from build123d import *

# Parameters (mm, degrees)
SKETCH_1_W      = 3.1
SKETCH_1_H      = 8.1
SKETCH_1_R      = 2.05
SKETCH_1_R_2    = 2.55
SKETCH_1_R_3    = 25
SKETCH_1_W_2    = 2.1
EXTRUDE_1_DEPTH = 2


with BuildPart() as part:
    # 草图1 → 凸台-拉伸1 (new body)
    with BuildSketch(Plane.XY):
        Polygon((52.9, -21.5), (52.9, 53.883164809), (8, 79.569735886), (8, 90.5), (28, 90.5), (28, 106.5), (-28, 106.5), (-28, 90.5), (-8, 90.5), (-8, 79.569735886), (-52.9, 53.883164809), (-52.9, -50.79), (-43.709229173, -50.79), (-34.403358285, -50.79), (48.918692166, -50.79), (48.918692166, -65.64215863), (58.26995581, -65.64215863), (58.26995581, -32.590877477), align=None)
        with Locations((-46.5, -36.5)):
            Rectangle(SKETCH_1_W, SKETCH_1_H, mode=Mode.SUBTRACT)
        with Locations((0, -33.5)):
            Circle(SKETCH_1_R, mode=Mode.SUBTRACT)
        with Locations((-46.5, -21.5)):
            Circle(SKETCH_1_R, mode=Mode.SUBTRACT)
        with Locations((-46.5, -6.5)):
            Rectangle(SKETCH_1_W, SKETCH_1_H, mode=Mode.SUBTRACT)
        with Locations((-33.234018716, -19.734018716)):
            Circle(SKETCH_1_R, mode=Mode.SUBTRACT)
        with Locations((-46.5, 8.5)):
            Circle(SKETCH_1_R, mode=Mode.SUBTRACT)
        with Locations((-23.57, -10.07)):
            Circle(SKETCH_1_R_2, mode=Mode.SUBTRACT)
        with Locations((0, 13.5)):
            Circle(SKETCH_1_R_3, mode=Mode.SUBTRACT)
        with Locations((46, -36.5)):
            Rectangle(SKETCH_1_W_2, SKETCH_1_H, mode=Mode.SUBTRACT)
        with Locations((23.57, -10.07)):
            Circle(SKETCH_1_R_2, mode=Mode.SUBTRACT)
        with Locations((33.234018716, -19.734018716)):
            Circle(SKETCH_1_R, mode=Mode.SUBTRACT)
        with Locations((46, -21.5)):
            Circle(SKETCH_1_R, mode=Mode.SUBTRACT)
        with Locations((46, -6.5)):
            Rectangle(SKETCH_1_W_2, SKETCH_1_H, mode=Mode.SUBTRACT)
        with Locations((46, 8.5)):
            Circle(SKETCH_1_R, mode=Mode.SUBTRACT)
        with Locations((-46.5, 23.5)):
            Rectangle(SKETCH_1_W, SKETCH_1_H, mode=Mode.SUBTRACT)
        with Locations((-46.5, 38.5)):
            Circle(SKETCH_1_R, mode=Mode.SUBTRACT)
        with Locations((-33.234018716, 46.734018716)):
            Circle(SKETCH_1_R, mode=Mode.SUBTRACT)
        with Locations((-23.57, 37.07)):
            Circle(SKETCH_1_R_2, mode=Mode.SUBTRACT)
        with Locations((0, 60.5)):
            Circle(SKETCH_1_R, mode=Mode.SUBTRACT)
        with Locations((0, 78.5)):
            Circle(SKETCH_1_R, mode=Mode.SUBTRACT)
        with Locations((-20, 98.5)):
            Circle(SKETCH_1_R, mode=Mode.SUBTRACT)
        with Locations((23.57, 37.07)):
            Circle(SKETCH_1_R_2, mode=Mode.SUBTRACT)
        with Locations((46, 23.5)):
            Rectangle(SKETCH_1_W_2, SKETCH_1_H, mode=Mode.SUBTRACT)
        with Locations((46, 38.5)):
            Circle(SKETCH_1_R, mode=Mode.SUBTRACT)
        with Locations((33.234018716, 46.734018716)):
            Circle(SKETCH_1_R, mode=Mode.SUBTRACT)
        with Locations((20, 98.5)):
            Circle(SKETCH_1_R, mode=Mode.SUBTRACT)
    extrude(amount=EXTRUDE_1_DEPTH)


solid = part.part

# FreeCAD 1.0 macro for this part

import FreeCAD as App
import Part
import Sketcher

V = App.Vector
Q = App.Units.Quantity

doc = App.newDocument("Part")
body = doc.addObject("PartDesign::Body", "Body")

# Sketch on XY plane
sketch1 = body.newObject("Sketcher::SketchObject", "Sketch")
sketch1.AttachmentSupport = (doc.getObject("XY_Plane"), [""])
sketch1.MapMode = "FlatFace"
sketch1.addGeometry(Part.LineSegment(V(52.9, -21.5, 0), V(52.9, 53.9, 0)), False)
sketch1.addGeometry(Part.LineSegment(V(52.9, 53.9, 0), V(8, 79.6, 0)), False)
sketch1.addGeometry(Part.LineSegment(V(8, 79.6, 0), V(8, 90.5, 0)), False)
sketch1.addGeometry(Part.LineSegment(V(8, 90.5, 0), V(28, 90.5, 0)), False)
sketch1.addGeometry(Part.LineSegment(V(28, 90.5, 0), V(28, 106.5, 0)), False)
sketch1.addGeometry(Part.LineSegment(V(28, 106.5, 0), V(-28, 106.5, 0)), False)
sketch1.addGeometry(Part.LineSegment(V(-28, 106.5, 0), V(-28, 90.5, 0)), False)
sketch1.addGeometry(Part.LineSegment(V(-28, 90.5, 0), V(-8, 90.5, 0)), False)
sketch1.addGeometry(Part.LineSegment(V(-8, 90.5, 0), V(-8, 79.6, 0)), False)
sketch1.addGeometry(Part.LineSegment(V(-8, 79.6, 0), V(-52.9, 53.9, 0)), False)
sketch1.addGeometry(Part.LineSegment(V(-52.9, 53.9, 0), V(-52.9, -50.8, 0)), False)
sketch1.addGeometry(Part.LineSegment(V(-52.9, -50.8, 0), V(48.9, -50.8, 0)), False)
sketch1.addGeometry(Part.LineSegment(V(48.9, -50.8, 0), V(48.9, -65.6, 0)), False)
sketch1.addGeometry(Part.LineSegment(V(48.9, -65.6, 0), V(58.3, -65.6, 0)), False)
sketch1.addGeometry(Part.LineSegment(V(58.3, -65.6, 0), V(58.3, -32.6, 0)), False)
sketch1.addGeometry(Part.LineSegment(V(58.3, -32.6, 0), V(52.9, -21.5, 0)), False)
sketch1.addGeometry(Part.LineSegment(V(-45, -40.5, 0), V(-48, -40.5, 0)), False)
sketch1.addGeometry(Part.LineSegment(V(-48, -40.5, 0), V(-48, -32.5, 0)), False)
sketch1.addGeometry(Part.LineSegment(V(-48, -32.5, 0), V(-45, -32.5, 0)), False)
sketch1.addGeometry(Part.LineSegment(V(-45, -32.5, 0), V(-45, -40.5, 0)), False)
sketch1.addGeometry(Part.Circle(V(-46.5, -21.5, 0), V(0, 0, 1), 2), False)
sketch1.addGeometry(Part.LineSegment(V(-45, -10.6, 0), V(-48, -10.6, 0)), False)
sketch1.addGeometry(Part.LineSegment(V(-48, -10.6, 0), V(-48, -2.5, 0)), False)
sketch1.addGeometry(Part.LineSegment(V(-48, -2.5, 0), V(-45, -2.5, 0)), False)
sketch1.addGeometry(Part.LineSegment(V(-45, -2.5, 0), V(-45, -10.6, 0)), False)
sketch1.addGeometry(Part.Circle(V(-33.2, -19.7, 0), V(0, 0, 1), 2), False)
sketch1.addGeometry(Part.Circle(V(-23.6, -10.1, 0), V(0, 0, 1), 2.5), False)
sketch1.addGeometry(Part.Circle(V(-46.5, 8.5, 0), V(0, 0, 1), 2), False)
sketch1.addGeometry(Part.LineSegment(V(-45, 19.4, 0), V(-48, 19.4, 0)), False)
sketch1.addGeometry(Part.LineSegment(V(-48, 19.4, 0), V(-48, 27.6, 0)), False)
sketch1.addGeometry(Part.LineSegment(V(-48, 27.6, 0), V(-45, 27.6, 0)), False)
sketch1.addGeometry(Part.LineSegment(V(-45, 27.6, 0), V(-45, 19.4, 0)), False)
sketch1.addGeometry(Part.Circle(V(0, -33.5, 0), V(0, 0, 1), 2), False)
sketch1.addGeometry(Part.Circle(V(23.6, -10.1, 0), V(0, 0, 1), 2.5), False)
sketch1.addGeometry(Part.LineSegment(V(47, -40.5, 0), V(45, -40.5, 0)), False)
sketch1.addGeometry(Part.LineSegment(V(45, -40.5, 0), V(45, -32.5, 0)), False)
sketch1.addGeometry(Part.LineSegment(V(45, -32.5, 0), V(47, -32.5, 0)), False)
sketch1.addGeometry(Part.LineSegment(V(47, -32.5, 0), V(47, -40.5, 0)), False)
sketch1.addGeometry(Part.Circle(V(33.2, -19.7, 0), V(0, 0, 1), 2), False)
sketch1.addGeometry(Part.Circle(V(46, -21.5, 0), V(0, 0, 1), 2), False)
sketch1.addGeometry(Part.LineSegment(V(47, -10.6, 0), V(45, -10.6, 0)), False)
sketch1.addGeometry(Part.LineSegment(V(45, -10.6, 0), V(45, -2.5, 0)), False)
sketch1.addGeometry(Part.LineSegment(V(45, -2.5, 0), V(47, -2.5, 0)), False)
sketch1.addGeometry(Part.LineSegment(V(47, -2.5, 0), V(47, -10.6, 0)), False)
sketch1.addGeometry(Part.Circle(V(0, 13.5, 0), V(0, 0, 1), 25), False)
sketch1.addGeometry(Part.Circle(V(46, 8.5, 0), V(0, 0, 1), 2), False)
sketch1.addGeometry(Part.LineSegment(V(47, 19.4, 0), V(45, 19.4, 0)), False)
sketch1.addGeometry(Part.LineSegment(V(45, 19.4, 0), V(45, 27.6, 0)), False)
sketch1.addGeometry(Part.LineSegment(V(45, 27.6, 0), V(47, 27.6, 0)), False)
sketch1.addGeometry(Part.LineSegment(V(47, 27.6, 0), V(47, 19.4, 0)), False)
sketch1.addGeometry(Part.Circle(V(-46.5, 38.5, 0), V(0, 0, 1), 2), False)
sketch1.addGeometry(Part.Circle(V(-33.2, 46.7, 0), V(0, 0, 1), 2), False)
sketch1.addGeometry(Part.Circle(V(-23.6, 37.1, 0), V(0, 0, 1), 2.5), False)
sketch1.addGeometry(Part.Circle(V(-20, 98.5, 0), V(0, 0, 1), 2), False)
sketch1.addGeometry(Part.Circle(V(23.6, 37.1, 0), V(0, 0, 1), 2.5), False)
sketch1.addGeometry(Part.Circle(V(0, 60.5, 0), V(0, 0, 1), 2), False)
sketch1.addGeometry(Part.Circle(V(33.2, 46.7, 0), V(0, 0, 1), 2), False)
sketch1.addGeometry(Part.Circle(V(46, 38.5, 0), V(0, 0, 1), 2), False)
sketch1.addGeometry(Part.Circle(V(0, 78.5, 0), V(0, 0, 1), 2), False)
sketch1.addGeometry(Part.Circle(V(20, 98.5, 0), V(0, 0, 1), 2), False)
sketch1.addConstraint(Sketcher.Constraint("Coincident", 0, 2, 1, 1))
sketch1.addConstraint(Sketcher.Constraint("Coincident", 1, 2, 2, 1))
sketch1.addConstraint(Sketcher.Constraint("Coincident", 2, 2, 3, 1))
sketch1.addConstraint(Sketcher.Constraint("Coincident", 3, 2, 4, 1))
sketch1.addConstraint(Sketcher.Constraint("Coincident", 4, 2, 5, 1))
sketch1.addConstraint(Sketcher.Constraint("Coincident", 5, 2, 6, 1))
sketch1.addConstraint(Sketcher.Constraint("Coincident", 6, 2, 7, 1))
sketch1.addConstraint(Sketcher.Constraint("Coincident", 7, 2, 8, 1))
sketch1.addConstraint(Sketcher.Constraint("Coincident", 8, 2, 9, 1))
sketch1.addConstraint(Sketcher.Constraint("Coincident", 9, 2, 10, 1))
sketch1.addConstraint(Sketcher.Constraint("Coincident", 10, 2, 11, 1))
sketch1.addConstraint(Sketcher.Constraint("Coincident", 11, 2, 12, 1))
sketch1.addConstraint(Sketcher.Constraint("Coincident", 12, 2, 13, 1))
sketch1.addConstraint(Sketcher.Constraint("Coincident", 13, 2, 14, 1))
sketch1.addConstraint(Sketcher.Constraint("Coincident", 14, 2, 15, 1))
sketch1.addConstraint(Sketcher.Constraint("Coincident", 15, 2, 0, 1))
sketch1.addConstraint(Sketcher.Constraint("Coincident", 16, 2, 17, 1))
sketch1.addConstraint(Sketcher.Constraint("Coincident", 17, 2, 18, 1))
sketch1.addConstraint(Sketcher.Constraint("Coincident", 18, 2, 19, 1))
sketch1.addConstraint(Sketcher.Constraint("Coincident", 19, 2, 16, 1))
sketch1.addConstraint(Sketcher.Constraint("Coincident", 21, 2, 22, 1))
sketch1.addConstraint(Sketcher.Constraint("Coincident", 22, 2, 23, 1))
sketch1.addConstraint(Sketcher.Constraint("Coincident", 23, 2, 24, 1))
sketch1.addConstraint(Sketcher.Constraint("Coincident", 24, 2, 21, 1))
sketch1.addConstraint(Sketcher.Constraint("Coincident", 28, 2, 29, 1))
sketch1.addConstraint(Sketcher.Constraint("Coincident", 29, 2, 30, 1))
sketch1.addConstraint(Sketcher.Constraint("Coincident", 30, 2, 31, 1))
sketch1.addConstraint(Sketcher.Constraint("Coincident", 31, 2, 28, 1))
sketch1.addConstraint(Sketcher.Constraint("Coincident", 34, 2, 35, 1))
sketch1.addConstraint(Sketcher.Constraint("Coincident", 35, 2, 36, 1))
sketch1.addConstraint(Sketcher.Constraint("Coincident", 36, 2, 37, 1))
sketch1.addConstraint(Sketcher.Constraint("Coincident", 37, 2, 34, 1))
sketch1.addConstraint(Sketcher.Constraint("Coincident", 40, 2, 41, 1))
sketch1.addConstraint(Sketcher.Constraint("Coincident", 41, 2, 42, 1))
sketch1.addConstraint(Sketcher.Constraint("Coincident", 42, 2, 43, 1))
sketch1.addConstraint(Sketcher.Constraint("Coincident", 43, 2, 40, 1))
sketch1.addConstraint(Sketcher.Constraint("Coincident", 46, 2, 47, 1))
sketch1.addConstraint(Sketcher.Constraint("Coincident", 47, 2, 48, 1))
sketch1.addConstraint(Sketcher.Constraint("Coincident", 48, 2, 49, 1))
sketch1.addConstraint(Sketcher.Constraint("Coincident", 49, 2, 46, 1))
sketch1.addConstraint(Sketcher.Constraint("Vertical", 0))
sketch1.addConstraint(Sketcher.Constraint("Vertical", 2))
sketch1.addConstraint(Sketcher.Constraint("Horizontal", 3))
sketch1.addConstraint(Sketcher.Constraint("Vertical", 4))
sketch1.addConstraint(Sketcher.Constraint("Horizontal", 5))
sketch1.addConstraint(Sketcher.Constraint("Vertical", 6))
sketch1.addConstraint(Sketcher.Constraint("Horizontal", 7))
sketch1.addConstraint(Sketcher.Constraint("Vertical", 8))
sketch1.addConstraint(Sketcher.Constraint("Vertical", 10))
sketch1.addConstraint(Sketcher.Constraint("Horizontal", 11))
sketch1.addConstraint(Sketcher.Constraint("Vertical", 12))
sketch1.addConstraint(Sketcher.Constraint("Horizontal", 13))
sketch1.addConstraint(Sketcher.Constraint("Vertical", 14))
sketch1.addConstraint(Sketcher.Constraint("Horizontal", 16))
sketch1.addConstraint(Sketcher.Constraint("Vertical", 17))
sketch1.addConstraint(Sketcher.Constraint("Horizontal", 18))
sketch1.addConstraint(Sketcher.Constraint("Vertical", 19))
sketch1.addConstraint(Sketcher.Constraint("Horizontal", 21))
sketch1.addConstraint(Sketcher.Constraint("Vertical", 22))
sketch1.addConstraint(Sketcher.Constraint("Horizontal", 23))
sketch1.addConstraint(Sketcher.Constraint("Vertical", 24))
sketch1.addConstraint(Sketcher.Constraint("Horizontal", 28))
sketch1.addConstraint(Sketcher.Constraint("Vertical", 29))
sketch1.addConstraint(Sketcher.Constraint("Horizontal", 30))
sketch1.addConstraint(Sketcher.Constraint("Vertical", 31))
sketch1.addConstraint(Sketcher.Constraint("Horizontal", 34))
sketch1.addConstraint(Sketcher.Constraint("Vertical", 35))
sketch1.addConstraint(Sketcher.Constraint("Horizontal", 36))
sketch1.addConstraint(Sketcher.Constraint("Vertical", 37))
sketch1.addConstraint(Sketcher.Constraint("Horizontal", 40))
sketch1.addConstraint(Sketcher.Constraint("Vertical", 41))
sketch1.addConstraint(Sketcher.Constraint("Horizontal", 42))
sketch1.addConstraint(Sketcher.Constraint("Vertical", 43))
sketch1.addConstraint(Sketcher.Constraint("Horizontal", 46))
sketch1.addConstraint(Sketcher.Constraint("Vertical", 47))
sketch1.addConstraint(Sketcher.Constraint("Horizontal", 48))
sketch1.addConstraint(Sketcher.Constraint("Vertical", 49))
sketch1.addConstraint(Sketcher.Constraint("Equal", 20, 25))
sketch1.addConstraint(Sketcher.Constraint("Equal", 25, 27))
sketch1.addConstraint(Sketcher.Constraint("Equal", 27, 32))
sketch1.addConstraint(Sketcher.Constraint("Equal", 26, 33))
sketch1.addConstraint(Sketcher.Constraint("Equal", 32, 38))
sketch1.addConstraint(Sketcher.Constraint("Equal", 38, 39))
sketch1.addConstraint(Sketcher.Constraint("Equal", 39, 45))
sketch1.addConstraint(Sketcher.Constraint("Equal", 45, 50))
sketch1.addConstraint(Sketcher.Constraint("Equal", 50, 51))
sketch1.addConstraint(Sketcher.Constraint("Equal", 33, 52))
sketch1.addConstraint(Sketcher.Constraint("Equal", 51, 53))
sketch1.addConstraint(Sketcher.Constraint("Equal", 52, 54))
sketch1.addConstraint(Sketcher.Constraint("Equal", 53, 55))
sketch1.addConstraint(Sketcher.Constraint("Equal", 55, 56))
sketch1.addConstraint(Sketcher.Constraint("Equal", 56, 57))
sketch1.addConstraint(Sketcher.Constraint("Equal", 57, 58))
sketch1.addConstraint(Sketcher.Constraint("Equal", 58, 59))
sketch1.addConstraint(Sketcher.Constraint("Symmetric", 26, 3, 33, 3, -2))
sketch1.addConstraint(Sketcher.Constraint("Symmetric", 25, 3, 38, 3, -2))
sketch1.addConstraint(Sketcher.Constraint("Symmetric", 52, 3, 54, 3, -2))
sketch1.addConstraint(Sketcher.Constraint("Symmetric", 51, 3, 56, 3, -2))
sketch1.addConstraint(Sketcher.Constraint("Symmetric", 53, 3, 59, 3, -2))
sketch1.addConstraint(Sketcher.Constraint("Symmetric", 3, 2, 6, 2, -2))
sketch1.addConstraint(Sketcher.Constraint("Symmetric", 1, 2, 8, 2, -2))
sketch1.addConstraint(Sketcher.Constraint("Symmetric", 0, 2, 9, 2, -2))
sketch1.addConstraint(Sketcher.Constraint("Symmetric", 19, 2, 34, 2, -2))
sketch1.addConstraint(Sketcher.Constraint("Symmetric", 24, 2, 40, 2, -2))
sketch1.addConstraint(Sketcher.Constraint("Symmetric", 31, 2, 46, 2, -2))
sketch1.addConstraint(Sketcher.Constraint("PointOnObject", 32, 3, -2))
sketch1.addConstraint(Sketcher.Constraint("PointOnObject", 44, 3, -2))
sketch1.addConstraint(Sketcher.Constraint("PointOnObject", 55, 3, -2))
sketch1.addConstraint(Sketcher.Constraint("PointOnObject", 58, 3, -2))
sketch1.addConstraint(Sketcher.Constraint("Horizontal", 20, 3, 39, 3))
sketch1.addConstraint(Sketcher.Constraint("Horizontal", 27, 3, 45, 3))
sketch1.addConstraint(Sketcher.Constraint("Horizontal", 50, 3, 57, 3))
sketch1.addConstraint(Sketcher.Constraint("Horizontal", 39, 3, 15, 2))
sketch1.addConstraint(Sketcher.Constraint("Horizontal", 18, 2, 35, 2))
sketch1.addConstraint(Sketcher.Constraint("Horizontal", 23, 2, 41, 2))
sketch1.addConstraint(Sketcher.Constraint("Horizontal", 30, 2, 47, 2))
sketch1.addConstraint(Sketcher.Constraint("Vertical", 20, 3, 27, 3))
sketch1.addConstraint(Sketcher.Constraint("Vertical", 39, 3, 45, 3))
sketch1.addConstraint(Sketcher.Constraint("Vertical", 27, 3, 50, 3))
sketch1.addConstraint(Sketcher.Constraint("Vertical", 25, 3, 51, 3))
sketch1.addConstraint(Sketcher.Constraint("Vertical", 26, 3, 52, 3))
sketch1.addConstraint(Sketcher.Constraint("Vertical", 45, 3, 57, 3))
sketch1.addConstraint(Sketcher.Constraint("Vertical", 17, 2, 21, 2))
sketch1.addConstraint(Sketcher.Constraint("Vertical", 19, 2, 23, 2))
sketch1.addConstraint(Sketcher.Constraint("Vertical", 22, 2, 28, 2))
sketch1.addConstraint(Sketcher.Constraint("Vertical", 24, 2, 30, 2))
sketch1.addConstraint(Sketcher.Constraint("Vertical", 37, 2, 42, 2))
sketch1.addConstraint(Sketcher.Constraint("Vertical", 43, 2, 48, 2))
sketch1.addConstraint(Sketcher.Constraint("Equal", 19, 22))
sketch1.addConstraint(Sketcher.Constraint("Equal", 24, 29))
sketch1.addConstraint(Sketcher.Constraint("Diameter", 44, Q("50 mm")))
sketch1.addConstraint(Sketcher.Constraint("Diameter", 20, Q("4.1 mm")))
sketch1.addConstraint(Sketcher.Constraint("Diameter", 26, Q("5.1 mm")))
sketch1.addConstraint(Sketcher.Constraint("DistanceX", 3, 1, 3, 2, Q("20 mm")))
sketch1.addConstraint(Sketcher.Constraint("DistanceX", 5, 2, 5, 1, Q("56 mm")))
sketch1.addConstraint(Sketcher.Constraint("DistanceY", 4, 1, 4, 2, Q("16 mm")))
sketch1.addConstraint(Sketcher.Constraint("DistanceX", 16, 2, 16, 1, Q("3.1 mm")))
sketch1.addConstraint(Sketcher.Constraint("DistanceX", 34, 2, 34, 1, Q("2.1 mm")))
sketch1.addConstraint(Sketcher.Constraint("DistanceY", 17, 1, 17, 2, Q("8.1 mm")))
sketch1.addConstraint(Sketcher.Constraint("DistanceX", -1, 1, 39, 3, Q("46 mm")))
sketch1.addConstraint(Sketcher.Constraint("DistanceX", 53, 3, -1, 1, Q("20 mm")))
sketch1.addConstraint(Sketcher.Constraint("DistanceY", 20, 3, 27, 3, Q("30 mm")))
sketch1.addConstraint(Sketcher.Constraint("DistanceY", 32, 3, 20, 3, Q("12 mm")))
sketch1.addConstraint(Sketcher.Constraint("DistanceY", 27, 3, 44, 3, Q("5 mm")))
sketch1.addConstraint(Sketcher.Constraint("DistanceY", 27, 3, 50, 3, Q("30 mm")))
sketch1.addConstraint(Sketcher.Constraint("DistanceY", 50, 3, 53, 3, Q("60 mm")))
sketch1.addConstraint(Sketcher.Constraint("DistanceY", 55, 3, 53, 3, Q("38 mm")))
sketch1.addConstraint(Sketcher.Constraint("DistanceY", 55, 3, 58, 3, Q("18 mm")))
sketch1.addConstraint(Sketcher.Constraint("DistanceY", 58, 3, 2, 2, Q("12 mm")))
sketch1.addConstraint(Sketcher.Constraint("DistanceY", 21, 2, 28, 2, Q("30 mm")))
sketch1.addConstraint(Sketcher.Constraint("DistanceX", 20, 3, -1, 1, Q("46.5 mm")))
sketch1.addConstraint(Sketcher.Constraint("DistanceY", 20, 3, -1, 1, Q("21.5 mm")))
sketch1.addConstraint(Sketcher.Constraint("DistanceX", -1, 1, 0, 2, Q("52.9 mm")))
sketch1.addConstraint(Sketcher.Constraint("DistanceY", 17, 2, 21, 2, Q("21.9 mm")))
sketch1.addConstraint(Sketcher.Constraint("DistanceX", 26, 3, -1, 1, Q("23.57 mm")))
sketch1.addConstraint(Sketcher.Constraint("DistanceY", 26, 3, -1, 1, Q("10.07 mm")))
sketch1.addConstraint(Sketcher.Constraint("DistanceY", -1, 1, 52, 3, Q("37.07 mm")))
sketch1.addConstraint(Sketcher.Constraint("DistanceY", 10, 2, -1, 1, Q("50.79 mm")))
sketch1.addConstraint(Sketcher.Constraint("DistanceX", 16, 2, -1, 1, Q("48.05 mm")))
sketch1.addConstraint(Sketcher.Constraint("DistanceY", 16, 2, -1, 1, Q("40.55 mm")))
sketch1.addConstraint(Sketcher.Constraint("Distance", 15, Q("12.322499 mm")))
sketch1.addConstraint(Sketcher.Constraint("DistanceY", 12, 2, 12, 1, Q("14.852159 mm")))
sketch1.addConstraint(Sketcher.Constraint("DistanceY", 14, 1, 14, 2, Q("33.051281 mm")))
sketch1.addConstraint(Sketcher.Constraint("Distance", 1, Q("51.728231 mm")))
sketch1.addConstraint(Sketcher.Constraint("DistanceX", 11, 1, 11, 2, Q("101.818692 mm")))
sketch1.addConstraint(Sketcher.Constraint("DistanceY", 0, 1, 0, 2, Q("75.383165 mm")))
sketch1.addConstraint(Sketcher.Constraint("DistanceX", 25, 3, -1, 1, Q("33.234019 mm")))
sketch1.addConstraint(Sketcher.Constraint("DistanceY", 25, 3, -1, 1, Q("19.734019 mm")))
sketch1.addConstraint(Sketcher.Constraint("DistanceY", -1, 1, 51, 3, Q("46.734019 mm")))
pad1 = body.newObject("PartDesign::Pad", "Pad")
pad1.Profile = sketch1
pad1.Length = 2

doc.recompute()
